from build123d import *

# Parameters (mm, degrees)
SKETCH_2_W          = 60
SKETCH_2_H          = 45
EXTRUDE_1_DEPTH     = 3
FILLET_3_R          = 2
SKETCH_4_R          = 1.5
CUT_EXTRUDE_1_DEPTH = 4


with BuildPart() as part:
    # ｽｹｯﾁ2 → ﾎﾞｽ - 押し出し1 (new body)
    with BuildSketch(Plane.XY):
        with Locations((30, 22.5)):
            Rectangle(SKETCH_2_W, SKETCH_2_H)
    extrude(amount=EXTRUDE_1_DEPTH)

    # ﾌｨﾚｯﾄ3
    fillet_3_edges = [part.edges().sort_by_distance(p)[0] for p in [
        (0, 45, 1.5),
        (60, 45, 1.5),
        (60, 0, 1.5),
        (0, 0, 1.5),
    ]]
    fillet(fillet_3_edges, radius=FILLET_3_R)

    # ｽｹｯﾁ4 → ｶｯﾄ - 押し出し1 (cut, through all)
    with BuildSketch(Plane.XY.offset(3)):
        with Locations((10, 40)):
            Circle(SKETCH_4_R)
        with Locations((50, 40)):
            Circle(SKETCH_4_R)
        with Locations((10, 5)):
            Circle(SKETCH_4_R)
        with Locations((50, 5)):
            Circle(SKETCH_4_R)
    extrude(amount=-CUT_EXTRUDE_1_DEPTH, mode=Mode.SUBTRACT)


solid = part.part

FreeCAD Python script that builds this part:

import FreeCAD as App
import Part
import Sketcher
from FreeCAD import Vector
Q = App.Units.Quantity


def edges_at(feature, points):
    """Names of the edges that pass closest to the given points."""
    edges = feature.Shape.Edges
    near = lambda p: min(range(len(edges)), key=lambda i: edges[i].distToShape(Part.Vertex(*p))[0])
    return sorted({f"Edge{near(p) + 1}" for p in points})


def add_polygon(sketch, points):
    """Adds a closed chain of lines whose ends are joined by coincident constraints."""
    first, n = sketch.GeometryCount, len(points)
    for a, b in zip(points, points[1:] + points[:1]):
        sketch.addGeometry(Part.LineSegment(App.Vector(*a, 0), App.Vector(*b, 0)), False)
    for i in range(n):
        sketch.addConstraint(Sketcher.Constraint("Coincident", first + i, 2, first + (i + 1) % n, 1))

doc = App.newDocument("Part")
params = doc.addObject("Spreadsheet::Sheet", "Params")
for row, (alias, value) in enumerate([
    ("sketch1_width", "60 mm"),
    ("sketch1_height", "45 mm"),
    ("pad1_length", "3 mm"),
    ("fillet_radius", "2 mm"),
    ("sketch2_diameter", "3 mm"),
], start=1):
    params.set(f"A{row}", alias)
    params.set(f"B{row}", "=" + value)
    params.setAlias(f"B{row}", alias)

body = doc.addObject("PartDesign::Body", "Body")

# Sketch on XY plane
sketch1 = body.newObject("Sketcher::SketchObject", "Sketch")
sketch1.AttachmentSupport = (doc.getObject("XY_Plane"), [""])
sketch1.MapMode = "FlatFace"
add_polygon(sketch1, [(0, 45), (0, 0), (60, 0), (60, 45)])  # lines 0-3
sketch1.addConstraint(Sketcher.Constraint("Vertical", 0))
sketch1.addConstraint(Sketcher.Constraint("Horizontal", 1))
sketch1.addConstraint(Sketcher.Constraint("Vertical", 2))
sketch1.addConstraint(Sketcher.Constraint("Horizontal", 3))
sketch1.addConstraint(Sketcher.Constraint("Coincident", 0, 2, -1, 1))
sketch1.addConstraint(Sketcher.Constraint("DistanceX", 1, 1, 1, 2, Q("60 mm")))
sketch1.addConstraint(Sketcher.Constraint("DistanceY", 0, 2, 0, 1, Q("45 mm")))
sketch1.setExpression("Constraints[9]", "Params.sketch1_width")
sketch1.setExpression("Constraints[10]", "Params.sketch1_height")
pad1 = body.newObject("PartDesign::Pad", "Pad")
pad1.Profile = sketch1
pad1.setExpression("Length", "Params.pad1_length")
doc.recompute()

fillet = body.newObject("PartDesign::Fillet", "Fillet")
fillet.Base = (pad1, edges_at(pad1, [
    (0, 45, 1.5),
    (60, 45, 1.5),
    (60, 0, 1.5),
    (0, 0, 1.5),
]))
fillet.setExpression("Radius", "Params.fillet_radius")

# Sketch on XY plane
sketch2 = body.newObject("Sketcher::SketchObject", "Sketch001")
sketch2.AttachmentSupport = (doc.getObject("XY_Plane"), [""])
sketch2.MapMode = "FlatFace"
sketch2.AttachmentOffset = App.Placement(Vector(0, 0, 3), App.Rotation())
sketch2.addGeometry(Part.Circle(Vector(10, 40, 0), Vector(0, 0, 1), 1.5), False)
sketch2.addGeometry(Part.Circle(Vector(50, 40, 0), Vector(0, 0, 1), 1.5), False)
sketch2.addGeometry(Part.Circle(Vector(10, 5, 0), Vector(0, 0, 1), 1.5), False)
sketch2.addGeometry(Part.Circle(Vector(50, 5, 0), Vector(0, 0, 1), 1.5), False)
sketch2.addConstraint(Sketcher.Constraint("Equal", 0, 1))
sketch2.addConstraint(Sketcher.Constraint("Equal", 1, 2))
sketch2.addConstraint(Sketcher.Constraint("Equal", 2, 3))
sketch2.addConstraint(Sketcher.Constraint("Horizontal", 0, 3, 1, 3))
sketch2.addConstraint(Sketcher.Constraint("Horizontal", 2, 3, 3, 3))
sketch2.addConstraint(Sketcher.Constraint("Vertical", 0, 3, 2, 3))
sketch2.addConstraint(Sketcher.Constraint("Vertical", 1, 3, 3, 3))
sketch2.addConstraint(Sketcher.Constraint("Diameter", 0, Q("3 mm")))
sketch2.addConstraint(Sketcher.Constraint("DistanceX", -1, 1, 0, 3, Q("10 mm")))
sketch2.addConstraint(Sketcher.Constraint("DistanceY", -1, 1, 0, 3, Q("40 mm")))
sketch2.addConstraint(Sketcher.Constraint("DistanceX", -1, 1, 1, 3, Q("50 mm")))
sketch2.addConstraint(Sketcher.Constraint("DistanceY", -1, 1, 2, 3, Q("5 mm")))
sketch2.setExpression("Constraints[7]", "Params.sketch2_diameter")
pocket1 = body.newObject("PartDesign::Pocket", "Pocket")
pocket1.Profile = sketch2
pocket1.Type = "ThroughAll"

doc.recompute()
